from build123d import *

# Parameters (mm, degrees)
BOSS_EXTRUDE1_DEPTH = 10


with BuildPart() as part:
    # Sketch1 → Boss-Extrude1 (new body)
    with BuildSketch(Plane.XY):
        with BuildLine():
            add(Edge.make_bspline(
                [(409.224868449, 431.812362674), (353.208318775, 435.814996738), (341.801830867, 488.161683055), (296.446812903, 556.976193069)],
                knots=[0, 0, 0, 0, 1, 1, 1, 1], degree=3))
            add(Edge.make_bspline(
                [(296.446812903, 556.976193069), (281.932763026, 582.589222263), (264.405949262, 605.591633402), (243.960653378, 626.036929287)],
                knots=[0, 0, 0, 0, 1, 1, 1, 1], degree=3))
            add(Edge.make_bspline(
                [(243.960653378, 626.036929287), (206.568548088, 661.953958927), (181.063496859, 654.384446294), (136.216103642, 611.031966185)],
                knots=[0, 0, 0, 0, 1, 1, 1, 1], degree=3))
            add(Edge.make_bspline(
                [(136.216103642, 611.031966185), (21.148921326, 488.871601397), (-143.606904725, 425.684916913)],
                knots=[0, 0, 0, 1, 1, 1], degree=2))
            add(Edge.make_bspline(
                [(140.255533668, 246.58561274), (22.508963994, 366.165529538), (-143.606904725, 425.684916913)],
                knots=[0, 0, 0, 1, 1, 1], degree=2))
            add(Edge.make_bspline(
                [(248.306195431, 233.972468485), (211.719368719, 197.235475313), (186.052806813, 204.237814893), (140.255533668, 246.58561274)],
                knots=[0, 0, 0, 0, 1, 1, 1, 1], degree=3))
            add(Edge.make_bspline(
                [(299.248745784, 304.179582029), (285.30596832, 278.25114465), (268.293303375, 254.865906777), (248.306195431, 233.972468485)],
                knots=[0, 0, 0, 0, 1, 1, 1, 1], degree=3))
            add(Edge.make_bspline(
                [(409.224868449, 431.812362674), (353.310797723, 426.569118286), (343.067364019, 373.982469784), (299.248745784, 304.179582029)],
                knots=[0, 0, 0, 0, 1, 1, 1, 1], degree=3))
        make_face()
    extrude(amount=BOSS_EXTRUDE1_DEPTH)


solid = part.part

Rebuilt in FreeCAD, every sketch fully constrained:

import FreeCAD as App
import Part
import Sketcher

doc = App.newDocument("Part")
body = doc.addObject("PartDesign::Body", "Body")

sketch1 = body.newObject("Sketcher::SketchObject", "Sketch")
sketch1.AttachmentSupport = (doc.getObject("XY_Plane"), [""])
sketch1.MapMode = "FlatFace"
sketch1.addGeometry(Part.BSplineCurve([App.Vector(409.224868, 431.812363, 0), App.Vector(353.208319, 435.814997, 0), App.Vector(341.801831, 488.161683, 0), App.Vector(296.446813, 556.976193, 0)], [4, 4], [0, 1], False, 3, [1, 1, 1, 1], False), False)
sketch1.addGeometry(Part.BSplineCurve([App.Vector(296.446813, 556.976193, 0), App.Vector(281.932763, 582.589222, 0), App.Vector(264.405949, 605.591633, 0), App.Vector(243.960653, 626.036929, 0)], [4, 4], [0, 1], False, 3, [1, 1, 1, 1], False), False)
sketch1.addGeometry(Part.BSplineCurve([App.Vector(243.960653, 626.036929, 0), App.Vector(206.568548, 661.953959, 0), App.Vector(181.063497, 654.384446, 0), App.Vector(136.216104, 611.031966, 0)], [4, 4], [0, 1], False, 3, [1, 1, 1, 1], False), False)
sketch1.addGeometry(Part.BSplineCurve([App.Vector(136.216104, 611.031966, 0), App.Vector(21.148921, 488.871601, 0), App.Vector(-143.606905, 425.684917, 0)], [3, 3], [0, 1], False, 2, [1, 1, 1], False), False)
sketch1.addGeometry(Part.BSplineCurve([App.Vector(140.255534, 246.585613, 0), App.Vector(22.508964, 366.16553, 0), App.Vector(-143.606905, 425.684917, 0)], [3, 3], [0, 1], False, 2, [1, 1, 1], False), False)
sketch1.addGeometry(Part.BSplineCurve([App.Vector(248.306195, 233.972468, 0), App.Vector(211.719369, 197.235475, 0), App.Vector(186.052807, 204.237815, 0), App.Vector(140.255534, 246.585613, 0)], [4, 4], [0, 1], False, 3, [1, 1, 1, 1], False), False)
sketch1.addGeometry(Part.BSplineCurve([App.Vector(299.248746, 304.179582, 0), App.Vector(285.305968, 278.251145, 0), App.Vector(268.293303, 254.865907, 0), App.Vector(248.306195, 233.972468, 0)], [4, 4], [0, 1], False, 3, [1, 1, 1, 1], False), False)
sketch1.addGeometry(Part.BSplineCurve([App.Vector(409.224868, 431.812363, 0), App.Vector(353.310798, 426.569118, 0), App.Vector(343.067364, 373.98247, 0), App.Vector(299.248746, 304.179582, 0)], [4, 4], [0, 1], False, 3, [1, 1, 1, 1], False), False)
sketch1.addConstraint(Sketcher.Constraint("Block", 0))
sketch1.addConstraint(Sketcher.Constraint("Block", 1))
sketch1.addConstraint(Sketcher.Constraint("Block", 2))
sketch1.addConstraint(Sketcher.Constraint("Block", 3))
sketch1.addConstraint(Sketcher.Constraint("Block", 4))
sketch1.addConstraint(Sketcher.Constraint("Block", 5))
sketch1.addConstraint(Sketcher.Constraint("Block", 6))
sketch1.addConstraint(Sketcher.Constraint("Block", 7))
pad1 = body.newObject("PartDesign::Pad", "Pad")
pad1.Profile = sketch1
pad1.Length = 10

doc.recompute()
